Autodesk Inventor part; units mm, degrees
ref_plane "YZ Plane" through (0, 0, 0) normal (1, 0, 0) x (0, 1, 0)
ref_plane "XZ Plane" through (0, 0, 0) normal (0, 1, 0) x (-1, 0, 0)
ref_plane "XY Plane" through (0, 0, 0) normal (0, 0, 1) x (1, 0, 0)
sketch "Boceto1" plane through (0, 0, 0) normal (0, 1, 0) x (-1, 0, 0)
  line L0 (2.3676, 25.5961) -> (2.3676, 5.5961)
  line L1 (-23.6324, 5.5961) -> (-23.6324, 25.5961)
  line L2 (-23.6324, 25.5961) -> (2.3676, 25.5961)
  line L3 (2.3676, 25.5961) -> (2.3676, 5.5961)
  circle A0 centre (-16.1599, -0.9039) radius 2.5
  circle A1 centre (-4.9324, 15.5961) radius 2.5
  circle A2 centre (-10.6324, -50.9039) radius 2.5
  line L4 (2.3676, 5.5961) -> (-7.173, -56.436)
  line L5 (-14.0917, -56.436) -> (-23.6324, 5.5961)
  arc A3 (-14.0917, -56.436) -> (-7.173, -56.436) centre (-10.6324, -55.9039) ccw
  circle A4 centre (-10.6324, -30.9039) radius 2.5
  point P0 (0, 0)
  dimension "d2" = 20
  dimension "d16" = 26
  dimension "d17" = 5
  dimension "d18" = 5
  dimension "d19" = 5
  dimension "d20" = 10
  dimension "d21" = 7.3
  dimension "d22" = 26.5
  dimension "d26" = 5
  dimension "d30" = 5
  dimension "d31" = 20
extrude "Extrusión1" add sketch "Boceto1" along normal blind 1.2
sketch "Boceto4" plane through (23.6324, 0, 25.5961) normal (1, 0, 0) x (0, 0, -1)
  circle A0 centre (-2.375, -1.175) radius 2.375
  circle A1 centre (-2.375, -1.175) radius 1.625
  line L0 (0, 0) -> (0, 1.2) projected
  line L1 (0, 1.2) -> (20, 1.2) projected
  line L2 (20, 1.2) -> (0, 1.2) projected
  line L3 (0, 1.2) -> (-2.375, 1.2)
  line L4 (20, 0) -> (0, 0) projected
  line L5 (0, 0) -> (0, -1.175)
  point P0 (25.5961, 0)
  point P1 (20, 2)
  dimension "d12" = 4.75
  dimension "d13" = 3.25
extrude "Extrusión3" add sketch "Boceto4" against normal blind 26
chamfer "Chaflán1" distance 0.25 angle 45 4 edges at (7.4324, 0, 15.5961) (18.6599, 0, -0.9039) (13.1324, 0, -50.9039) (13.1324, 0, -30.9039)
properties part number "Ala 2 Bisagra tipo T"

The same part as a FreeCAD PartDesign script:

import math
import FreeCAD as App
import Part
import Sketcher
Q = App.Units.Quantity


def edges_at(feature, points):
    """Names of the edges that pass closest to the given points."""
    edges = feature.Shape.Edges
    near = lambda p: min(range(len(edges)), key=lambda i: edges[i].distToShape(Part.Vertex(*p))[0])
    return sorted({f"Edge{near(p) + 1}" for p in points})

doc = App.newDocument("Part")
body = doc.addObject("PartDesign::Body", "Body")

sketch1 = body.newObject("Sketcher::SketchObject", "Sketch")
sketch1.AttachmentSupport = (doc.getObject("XZ_Plane"), [""])
sketch1.MapMode = "FlatFace"
sketch1.addGeometry([
    Part.LineSegment(App.Vector(-2.4, 5.6, 0), App.Vector(-2.4, 25.6, 0)),
    Part.LineSegment(App.Vector(-2.4, 25.6, 0), App.Vector(23.6, 25.6, 0)),
    Part.LineSegment(App.Vector(23.6, 25.6, 0), App.Vector(23.6, 5.6, 0)),
    Part.LineSegment(App.Vector(23.6, 5.6, 0), App.Vector(14.1, -56.4, 0)),
    Part.ArcOfCircle(Part.Circle(App.Vector(10.6, -55.9, 0), App.Vector(0, 0, 1), 3.5), math.radians(-171), math.radians(-9)),
    Part.LineSegment(App.Vector(7.2, -56.4, 0), App.Vector(-2.4, 5.6, 0)),
    Part.Circle(App.Vector(10.6, -50.9, 0), App.Vector(0, 0, 1), 2.5),
    Part.Circle(App.Vector(10.6, -30.9, 0), App.Vector(0, 0, 1), 2.5),
    Part.Circle(App.Vector(16.2, -0.9, 0), App.Vector(0, 0, 1), 2.5),
    Part.Circle(App.Vector(4.9, 15.6, 0), App.Vector(0, 0, 1), 2.5),
], False)
sketch1.addConstraint([
    Sketcher.Constraint("Coincident", 0, 2, 1, 1),
    Sketcher.Constraint("Coincident", 1, 2, 2, 1),
    Sketcher.Constraint("Coincident", 2, 2, 3, 1),
    Sketcher.Constraint("Tangent", 3, 2, 4, 2),
    Sketcher.Constraint("Tangent", 4, 1, 5, 1),
    Sketcher.Constraint("Coincident", 5, 2, 0, 1),
    Sketcher.Constraint("Vertical", 0),
    Sketcher.Constraint("Horizontal", 1),
    Sketcher.Constraint("Vertical", 2),
    Sketcher.Constraint("Equal", 6, 7),
    Sketcher.Constraint("Equal", 7, 8),
    Sketcher.Constraint("Equal", 8, 9),
    Sketcher.Constraint("Horizontal", 3, 2, 4, 1),
    Sketcher.Constraint("Horizontal", 2, 2, 5, 2),
    Sketcher.Constraint("Vertical", 4, 3, 6, 3),
    Sketcher.Constraint("Vertical", 6, 3, 7, 3),
    Sketcher.Constraint("Diameter", 6, Q("5 mm")),
    Sketcher.Constraint("DistanceX", 1, 1, 1, 2, Q("26 mm")),
    Sketcher.Constraint("DistanceY", 0, 1, 0, 2, Q("20 mm")),
    Sketcher.Constraint("DistanceY", 4, 3, 6, 3, Q("5 mm")),
    Sketcher.Constraint("DistanceY", 6, 3, 7, 3, Q("20 mm")),
    Sketcher.Constraint("DistanceY", 9, 3, 0, 2, Q("10 mm")),
    Sketcher.Constraint("Radius", 4, Q("3.5 mm")),
    Sketcher.Constraint("DistanceX", 0, 2, 9, 3, Q("7.3 mm")),
    Sketcher.Constraint("DistanceY", 8, 3, 0, 2, Q("26.5 mm")),
    Sketcher.Constraint("DistanceY", 7, 3, 8, 3, Q("30 mm")),
    Sketcher.Constraint("DistanceX", -1, 1, 8, 3, Q("16.16 mm")),
    Sketcher.Constraint("DistanceY", 4, 3, -1, 1, Q("55.904 mm")),
    Sketcher.Constraint("DistanceX", -1, 1, 4, 1, Q("7.173 mm")),
])
pad1 = body.newObject("PartDesign::Pad", "Pad")
pad1.Profile = sketch1
pad1.Length = 1.2
pad1.Reversed = True

sketch2 = body.newObject("Sketcher::SketchObject", "Sketch001")
sketch2.AttachmentSupport = (doc.getObject("YZ_Plane"), [""])
sketch2.MapMode = "FlatFace"
sketch2.AttachmentOffset = App.Placement(App.Vector(0, 0, 23.6324), App.Rotation())
sketch2.addGeometry([
    Part.ArcOfCircle(Part.Circle(App.Vector(-1.2, 28, 0), App.Vector(0, 0, 1), 2.4), math.radians(0), math.radians(270)),
    Part.LineSegment(App.Vector(-1.2, 25.6, 0), App.Vector(1.2, 25.6, 0)),
    Part.LineSegment(App.Vector(1.2, 25.6, 0), App.Vector(1.2, 28, 0)),
    Part.Circle(App.Vector(-1.2, 28, 0), App.Vector(0, 0, 1), 1.6),
], False)
sketch2.addConstraint([
    Sketcher.Constraint("Tangent", 0, 2, 1, 1),
    Sketcher.Constraint("Coincident", 1, 2, 2, 1),
    Sketcher.Constraint("Tangent", 2, 2, 0, 1),
    Sketcher.Constraint("Horizontal", 1),
    Sketcher.Constraint("Vertical", 2),
    Sketcher.Constraint("Coincident", 3, 3, 0, 3),
    Sketcher.Constraint("Diameter", 3, Q("3.25 mm")),
    Sketcher.Constraint("Radius", 0, Q("2.375 mm")),
    Sketcher.Constraint("DistanceX", -1, 1, 1, 2, Q("1.2 mm")),
    Sketcher.Constraint("DistanceY", -1, 1, 0, 3, Q("27.971 mm")),
])
pad2 = body.newObject("PartDesign::Pad", "Pad001")
pad2.Profile = sketch2
pad2.Length = 26
pad2.Reversed = True
doc.recompute()

chamfer = body.newObject("PartDesign::Chamfer", "Chamfer")
chamfer.Base = (pad2, edges_at(pad2, [
    (7.432, 0, 15.596),
    (18.66, 0, -0.904),
    (13.132, 0, -50.904),
    (13.132, 0, -30.904),
]))
chamfer.Size = 0.25

doc.recompute()
